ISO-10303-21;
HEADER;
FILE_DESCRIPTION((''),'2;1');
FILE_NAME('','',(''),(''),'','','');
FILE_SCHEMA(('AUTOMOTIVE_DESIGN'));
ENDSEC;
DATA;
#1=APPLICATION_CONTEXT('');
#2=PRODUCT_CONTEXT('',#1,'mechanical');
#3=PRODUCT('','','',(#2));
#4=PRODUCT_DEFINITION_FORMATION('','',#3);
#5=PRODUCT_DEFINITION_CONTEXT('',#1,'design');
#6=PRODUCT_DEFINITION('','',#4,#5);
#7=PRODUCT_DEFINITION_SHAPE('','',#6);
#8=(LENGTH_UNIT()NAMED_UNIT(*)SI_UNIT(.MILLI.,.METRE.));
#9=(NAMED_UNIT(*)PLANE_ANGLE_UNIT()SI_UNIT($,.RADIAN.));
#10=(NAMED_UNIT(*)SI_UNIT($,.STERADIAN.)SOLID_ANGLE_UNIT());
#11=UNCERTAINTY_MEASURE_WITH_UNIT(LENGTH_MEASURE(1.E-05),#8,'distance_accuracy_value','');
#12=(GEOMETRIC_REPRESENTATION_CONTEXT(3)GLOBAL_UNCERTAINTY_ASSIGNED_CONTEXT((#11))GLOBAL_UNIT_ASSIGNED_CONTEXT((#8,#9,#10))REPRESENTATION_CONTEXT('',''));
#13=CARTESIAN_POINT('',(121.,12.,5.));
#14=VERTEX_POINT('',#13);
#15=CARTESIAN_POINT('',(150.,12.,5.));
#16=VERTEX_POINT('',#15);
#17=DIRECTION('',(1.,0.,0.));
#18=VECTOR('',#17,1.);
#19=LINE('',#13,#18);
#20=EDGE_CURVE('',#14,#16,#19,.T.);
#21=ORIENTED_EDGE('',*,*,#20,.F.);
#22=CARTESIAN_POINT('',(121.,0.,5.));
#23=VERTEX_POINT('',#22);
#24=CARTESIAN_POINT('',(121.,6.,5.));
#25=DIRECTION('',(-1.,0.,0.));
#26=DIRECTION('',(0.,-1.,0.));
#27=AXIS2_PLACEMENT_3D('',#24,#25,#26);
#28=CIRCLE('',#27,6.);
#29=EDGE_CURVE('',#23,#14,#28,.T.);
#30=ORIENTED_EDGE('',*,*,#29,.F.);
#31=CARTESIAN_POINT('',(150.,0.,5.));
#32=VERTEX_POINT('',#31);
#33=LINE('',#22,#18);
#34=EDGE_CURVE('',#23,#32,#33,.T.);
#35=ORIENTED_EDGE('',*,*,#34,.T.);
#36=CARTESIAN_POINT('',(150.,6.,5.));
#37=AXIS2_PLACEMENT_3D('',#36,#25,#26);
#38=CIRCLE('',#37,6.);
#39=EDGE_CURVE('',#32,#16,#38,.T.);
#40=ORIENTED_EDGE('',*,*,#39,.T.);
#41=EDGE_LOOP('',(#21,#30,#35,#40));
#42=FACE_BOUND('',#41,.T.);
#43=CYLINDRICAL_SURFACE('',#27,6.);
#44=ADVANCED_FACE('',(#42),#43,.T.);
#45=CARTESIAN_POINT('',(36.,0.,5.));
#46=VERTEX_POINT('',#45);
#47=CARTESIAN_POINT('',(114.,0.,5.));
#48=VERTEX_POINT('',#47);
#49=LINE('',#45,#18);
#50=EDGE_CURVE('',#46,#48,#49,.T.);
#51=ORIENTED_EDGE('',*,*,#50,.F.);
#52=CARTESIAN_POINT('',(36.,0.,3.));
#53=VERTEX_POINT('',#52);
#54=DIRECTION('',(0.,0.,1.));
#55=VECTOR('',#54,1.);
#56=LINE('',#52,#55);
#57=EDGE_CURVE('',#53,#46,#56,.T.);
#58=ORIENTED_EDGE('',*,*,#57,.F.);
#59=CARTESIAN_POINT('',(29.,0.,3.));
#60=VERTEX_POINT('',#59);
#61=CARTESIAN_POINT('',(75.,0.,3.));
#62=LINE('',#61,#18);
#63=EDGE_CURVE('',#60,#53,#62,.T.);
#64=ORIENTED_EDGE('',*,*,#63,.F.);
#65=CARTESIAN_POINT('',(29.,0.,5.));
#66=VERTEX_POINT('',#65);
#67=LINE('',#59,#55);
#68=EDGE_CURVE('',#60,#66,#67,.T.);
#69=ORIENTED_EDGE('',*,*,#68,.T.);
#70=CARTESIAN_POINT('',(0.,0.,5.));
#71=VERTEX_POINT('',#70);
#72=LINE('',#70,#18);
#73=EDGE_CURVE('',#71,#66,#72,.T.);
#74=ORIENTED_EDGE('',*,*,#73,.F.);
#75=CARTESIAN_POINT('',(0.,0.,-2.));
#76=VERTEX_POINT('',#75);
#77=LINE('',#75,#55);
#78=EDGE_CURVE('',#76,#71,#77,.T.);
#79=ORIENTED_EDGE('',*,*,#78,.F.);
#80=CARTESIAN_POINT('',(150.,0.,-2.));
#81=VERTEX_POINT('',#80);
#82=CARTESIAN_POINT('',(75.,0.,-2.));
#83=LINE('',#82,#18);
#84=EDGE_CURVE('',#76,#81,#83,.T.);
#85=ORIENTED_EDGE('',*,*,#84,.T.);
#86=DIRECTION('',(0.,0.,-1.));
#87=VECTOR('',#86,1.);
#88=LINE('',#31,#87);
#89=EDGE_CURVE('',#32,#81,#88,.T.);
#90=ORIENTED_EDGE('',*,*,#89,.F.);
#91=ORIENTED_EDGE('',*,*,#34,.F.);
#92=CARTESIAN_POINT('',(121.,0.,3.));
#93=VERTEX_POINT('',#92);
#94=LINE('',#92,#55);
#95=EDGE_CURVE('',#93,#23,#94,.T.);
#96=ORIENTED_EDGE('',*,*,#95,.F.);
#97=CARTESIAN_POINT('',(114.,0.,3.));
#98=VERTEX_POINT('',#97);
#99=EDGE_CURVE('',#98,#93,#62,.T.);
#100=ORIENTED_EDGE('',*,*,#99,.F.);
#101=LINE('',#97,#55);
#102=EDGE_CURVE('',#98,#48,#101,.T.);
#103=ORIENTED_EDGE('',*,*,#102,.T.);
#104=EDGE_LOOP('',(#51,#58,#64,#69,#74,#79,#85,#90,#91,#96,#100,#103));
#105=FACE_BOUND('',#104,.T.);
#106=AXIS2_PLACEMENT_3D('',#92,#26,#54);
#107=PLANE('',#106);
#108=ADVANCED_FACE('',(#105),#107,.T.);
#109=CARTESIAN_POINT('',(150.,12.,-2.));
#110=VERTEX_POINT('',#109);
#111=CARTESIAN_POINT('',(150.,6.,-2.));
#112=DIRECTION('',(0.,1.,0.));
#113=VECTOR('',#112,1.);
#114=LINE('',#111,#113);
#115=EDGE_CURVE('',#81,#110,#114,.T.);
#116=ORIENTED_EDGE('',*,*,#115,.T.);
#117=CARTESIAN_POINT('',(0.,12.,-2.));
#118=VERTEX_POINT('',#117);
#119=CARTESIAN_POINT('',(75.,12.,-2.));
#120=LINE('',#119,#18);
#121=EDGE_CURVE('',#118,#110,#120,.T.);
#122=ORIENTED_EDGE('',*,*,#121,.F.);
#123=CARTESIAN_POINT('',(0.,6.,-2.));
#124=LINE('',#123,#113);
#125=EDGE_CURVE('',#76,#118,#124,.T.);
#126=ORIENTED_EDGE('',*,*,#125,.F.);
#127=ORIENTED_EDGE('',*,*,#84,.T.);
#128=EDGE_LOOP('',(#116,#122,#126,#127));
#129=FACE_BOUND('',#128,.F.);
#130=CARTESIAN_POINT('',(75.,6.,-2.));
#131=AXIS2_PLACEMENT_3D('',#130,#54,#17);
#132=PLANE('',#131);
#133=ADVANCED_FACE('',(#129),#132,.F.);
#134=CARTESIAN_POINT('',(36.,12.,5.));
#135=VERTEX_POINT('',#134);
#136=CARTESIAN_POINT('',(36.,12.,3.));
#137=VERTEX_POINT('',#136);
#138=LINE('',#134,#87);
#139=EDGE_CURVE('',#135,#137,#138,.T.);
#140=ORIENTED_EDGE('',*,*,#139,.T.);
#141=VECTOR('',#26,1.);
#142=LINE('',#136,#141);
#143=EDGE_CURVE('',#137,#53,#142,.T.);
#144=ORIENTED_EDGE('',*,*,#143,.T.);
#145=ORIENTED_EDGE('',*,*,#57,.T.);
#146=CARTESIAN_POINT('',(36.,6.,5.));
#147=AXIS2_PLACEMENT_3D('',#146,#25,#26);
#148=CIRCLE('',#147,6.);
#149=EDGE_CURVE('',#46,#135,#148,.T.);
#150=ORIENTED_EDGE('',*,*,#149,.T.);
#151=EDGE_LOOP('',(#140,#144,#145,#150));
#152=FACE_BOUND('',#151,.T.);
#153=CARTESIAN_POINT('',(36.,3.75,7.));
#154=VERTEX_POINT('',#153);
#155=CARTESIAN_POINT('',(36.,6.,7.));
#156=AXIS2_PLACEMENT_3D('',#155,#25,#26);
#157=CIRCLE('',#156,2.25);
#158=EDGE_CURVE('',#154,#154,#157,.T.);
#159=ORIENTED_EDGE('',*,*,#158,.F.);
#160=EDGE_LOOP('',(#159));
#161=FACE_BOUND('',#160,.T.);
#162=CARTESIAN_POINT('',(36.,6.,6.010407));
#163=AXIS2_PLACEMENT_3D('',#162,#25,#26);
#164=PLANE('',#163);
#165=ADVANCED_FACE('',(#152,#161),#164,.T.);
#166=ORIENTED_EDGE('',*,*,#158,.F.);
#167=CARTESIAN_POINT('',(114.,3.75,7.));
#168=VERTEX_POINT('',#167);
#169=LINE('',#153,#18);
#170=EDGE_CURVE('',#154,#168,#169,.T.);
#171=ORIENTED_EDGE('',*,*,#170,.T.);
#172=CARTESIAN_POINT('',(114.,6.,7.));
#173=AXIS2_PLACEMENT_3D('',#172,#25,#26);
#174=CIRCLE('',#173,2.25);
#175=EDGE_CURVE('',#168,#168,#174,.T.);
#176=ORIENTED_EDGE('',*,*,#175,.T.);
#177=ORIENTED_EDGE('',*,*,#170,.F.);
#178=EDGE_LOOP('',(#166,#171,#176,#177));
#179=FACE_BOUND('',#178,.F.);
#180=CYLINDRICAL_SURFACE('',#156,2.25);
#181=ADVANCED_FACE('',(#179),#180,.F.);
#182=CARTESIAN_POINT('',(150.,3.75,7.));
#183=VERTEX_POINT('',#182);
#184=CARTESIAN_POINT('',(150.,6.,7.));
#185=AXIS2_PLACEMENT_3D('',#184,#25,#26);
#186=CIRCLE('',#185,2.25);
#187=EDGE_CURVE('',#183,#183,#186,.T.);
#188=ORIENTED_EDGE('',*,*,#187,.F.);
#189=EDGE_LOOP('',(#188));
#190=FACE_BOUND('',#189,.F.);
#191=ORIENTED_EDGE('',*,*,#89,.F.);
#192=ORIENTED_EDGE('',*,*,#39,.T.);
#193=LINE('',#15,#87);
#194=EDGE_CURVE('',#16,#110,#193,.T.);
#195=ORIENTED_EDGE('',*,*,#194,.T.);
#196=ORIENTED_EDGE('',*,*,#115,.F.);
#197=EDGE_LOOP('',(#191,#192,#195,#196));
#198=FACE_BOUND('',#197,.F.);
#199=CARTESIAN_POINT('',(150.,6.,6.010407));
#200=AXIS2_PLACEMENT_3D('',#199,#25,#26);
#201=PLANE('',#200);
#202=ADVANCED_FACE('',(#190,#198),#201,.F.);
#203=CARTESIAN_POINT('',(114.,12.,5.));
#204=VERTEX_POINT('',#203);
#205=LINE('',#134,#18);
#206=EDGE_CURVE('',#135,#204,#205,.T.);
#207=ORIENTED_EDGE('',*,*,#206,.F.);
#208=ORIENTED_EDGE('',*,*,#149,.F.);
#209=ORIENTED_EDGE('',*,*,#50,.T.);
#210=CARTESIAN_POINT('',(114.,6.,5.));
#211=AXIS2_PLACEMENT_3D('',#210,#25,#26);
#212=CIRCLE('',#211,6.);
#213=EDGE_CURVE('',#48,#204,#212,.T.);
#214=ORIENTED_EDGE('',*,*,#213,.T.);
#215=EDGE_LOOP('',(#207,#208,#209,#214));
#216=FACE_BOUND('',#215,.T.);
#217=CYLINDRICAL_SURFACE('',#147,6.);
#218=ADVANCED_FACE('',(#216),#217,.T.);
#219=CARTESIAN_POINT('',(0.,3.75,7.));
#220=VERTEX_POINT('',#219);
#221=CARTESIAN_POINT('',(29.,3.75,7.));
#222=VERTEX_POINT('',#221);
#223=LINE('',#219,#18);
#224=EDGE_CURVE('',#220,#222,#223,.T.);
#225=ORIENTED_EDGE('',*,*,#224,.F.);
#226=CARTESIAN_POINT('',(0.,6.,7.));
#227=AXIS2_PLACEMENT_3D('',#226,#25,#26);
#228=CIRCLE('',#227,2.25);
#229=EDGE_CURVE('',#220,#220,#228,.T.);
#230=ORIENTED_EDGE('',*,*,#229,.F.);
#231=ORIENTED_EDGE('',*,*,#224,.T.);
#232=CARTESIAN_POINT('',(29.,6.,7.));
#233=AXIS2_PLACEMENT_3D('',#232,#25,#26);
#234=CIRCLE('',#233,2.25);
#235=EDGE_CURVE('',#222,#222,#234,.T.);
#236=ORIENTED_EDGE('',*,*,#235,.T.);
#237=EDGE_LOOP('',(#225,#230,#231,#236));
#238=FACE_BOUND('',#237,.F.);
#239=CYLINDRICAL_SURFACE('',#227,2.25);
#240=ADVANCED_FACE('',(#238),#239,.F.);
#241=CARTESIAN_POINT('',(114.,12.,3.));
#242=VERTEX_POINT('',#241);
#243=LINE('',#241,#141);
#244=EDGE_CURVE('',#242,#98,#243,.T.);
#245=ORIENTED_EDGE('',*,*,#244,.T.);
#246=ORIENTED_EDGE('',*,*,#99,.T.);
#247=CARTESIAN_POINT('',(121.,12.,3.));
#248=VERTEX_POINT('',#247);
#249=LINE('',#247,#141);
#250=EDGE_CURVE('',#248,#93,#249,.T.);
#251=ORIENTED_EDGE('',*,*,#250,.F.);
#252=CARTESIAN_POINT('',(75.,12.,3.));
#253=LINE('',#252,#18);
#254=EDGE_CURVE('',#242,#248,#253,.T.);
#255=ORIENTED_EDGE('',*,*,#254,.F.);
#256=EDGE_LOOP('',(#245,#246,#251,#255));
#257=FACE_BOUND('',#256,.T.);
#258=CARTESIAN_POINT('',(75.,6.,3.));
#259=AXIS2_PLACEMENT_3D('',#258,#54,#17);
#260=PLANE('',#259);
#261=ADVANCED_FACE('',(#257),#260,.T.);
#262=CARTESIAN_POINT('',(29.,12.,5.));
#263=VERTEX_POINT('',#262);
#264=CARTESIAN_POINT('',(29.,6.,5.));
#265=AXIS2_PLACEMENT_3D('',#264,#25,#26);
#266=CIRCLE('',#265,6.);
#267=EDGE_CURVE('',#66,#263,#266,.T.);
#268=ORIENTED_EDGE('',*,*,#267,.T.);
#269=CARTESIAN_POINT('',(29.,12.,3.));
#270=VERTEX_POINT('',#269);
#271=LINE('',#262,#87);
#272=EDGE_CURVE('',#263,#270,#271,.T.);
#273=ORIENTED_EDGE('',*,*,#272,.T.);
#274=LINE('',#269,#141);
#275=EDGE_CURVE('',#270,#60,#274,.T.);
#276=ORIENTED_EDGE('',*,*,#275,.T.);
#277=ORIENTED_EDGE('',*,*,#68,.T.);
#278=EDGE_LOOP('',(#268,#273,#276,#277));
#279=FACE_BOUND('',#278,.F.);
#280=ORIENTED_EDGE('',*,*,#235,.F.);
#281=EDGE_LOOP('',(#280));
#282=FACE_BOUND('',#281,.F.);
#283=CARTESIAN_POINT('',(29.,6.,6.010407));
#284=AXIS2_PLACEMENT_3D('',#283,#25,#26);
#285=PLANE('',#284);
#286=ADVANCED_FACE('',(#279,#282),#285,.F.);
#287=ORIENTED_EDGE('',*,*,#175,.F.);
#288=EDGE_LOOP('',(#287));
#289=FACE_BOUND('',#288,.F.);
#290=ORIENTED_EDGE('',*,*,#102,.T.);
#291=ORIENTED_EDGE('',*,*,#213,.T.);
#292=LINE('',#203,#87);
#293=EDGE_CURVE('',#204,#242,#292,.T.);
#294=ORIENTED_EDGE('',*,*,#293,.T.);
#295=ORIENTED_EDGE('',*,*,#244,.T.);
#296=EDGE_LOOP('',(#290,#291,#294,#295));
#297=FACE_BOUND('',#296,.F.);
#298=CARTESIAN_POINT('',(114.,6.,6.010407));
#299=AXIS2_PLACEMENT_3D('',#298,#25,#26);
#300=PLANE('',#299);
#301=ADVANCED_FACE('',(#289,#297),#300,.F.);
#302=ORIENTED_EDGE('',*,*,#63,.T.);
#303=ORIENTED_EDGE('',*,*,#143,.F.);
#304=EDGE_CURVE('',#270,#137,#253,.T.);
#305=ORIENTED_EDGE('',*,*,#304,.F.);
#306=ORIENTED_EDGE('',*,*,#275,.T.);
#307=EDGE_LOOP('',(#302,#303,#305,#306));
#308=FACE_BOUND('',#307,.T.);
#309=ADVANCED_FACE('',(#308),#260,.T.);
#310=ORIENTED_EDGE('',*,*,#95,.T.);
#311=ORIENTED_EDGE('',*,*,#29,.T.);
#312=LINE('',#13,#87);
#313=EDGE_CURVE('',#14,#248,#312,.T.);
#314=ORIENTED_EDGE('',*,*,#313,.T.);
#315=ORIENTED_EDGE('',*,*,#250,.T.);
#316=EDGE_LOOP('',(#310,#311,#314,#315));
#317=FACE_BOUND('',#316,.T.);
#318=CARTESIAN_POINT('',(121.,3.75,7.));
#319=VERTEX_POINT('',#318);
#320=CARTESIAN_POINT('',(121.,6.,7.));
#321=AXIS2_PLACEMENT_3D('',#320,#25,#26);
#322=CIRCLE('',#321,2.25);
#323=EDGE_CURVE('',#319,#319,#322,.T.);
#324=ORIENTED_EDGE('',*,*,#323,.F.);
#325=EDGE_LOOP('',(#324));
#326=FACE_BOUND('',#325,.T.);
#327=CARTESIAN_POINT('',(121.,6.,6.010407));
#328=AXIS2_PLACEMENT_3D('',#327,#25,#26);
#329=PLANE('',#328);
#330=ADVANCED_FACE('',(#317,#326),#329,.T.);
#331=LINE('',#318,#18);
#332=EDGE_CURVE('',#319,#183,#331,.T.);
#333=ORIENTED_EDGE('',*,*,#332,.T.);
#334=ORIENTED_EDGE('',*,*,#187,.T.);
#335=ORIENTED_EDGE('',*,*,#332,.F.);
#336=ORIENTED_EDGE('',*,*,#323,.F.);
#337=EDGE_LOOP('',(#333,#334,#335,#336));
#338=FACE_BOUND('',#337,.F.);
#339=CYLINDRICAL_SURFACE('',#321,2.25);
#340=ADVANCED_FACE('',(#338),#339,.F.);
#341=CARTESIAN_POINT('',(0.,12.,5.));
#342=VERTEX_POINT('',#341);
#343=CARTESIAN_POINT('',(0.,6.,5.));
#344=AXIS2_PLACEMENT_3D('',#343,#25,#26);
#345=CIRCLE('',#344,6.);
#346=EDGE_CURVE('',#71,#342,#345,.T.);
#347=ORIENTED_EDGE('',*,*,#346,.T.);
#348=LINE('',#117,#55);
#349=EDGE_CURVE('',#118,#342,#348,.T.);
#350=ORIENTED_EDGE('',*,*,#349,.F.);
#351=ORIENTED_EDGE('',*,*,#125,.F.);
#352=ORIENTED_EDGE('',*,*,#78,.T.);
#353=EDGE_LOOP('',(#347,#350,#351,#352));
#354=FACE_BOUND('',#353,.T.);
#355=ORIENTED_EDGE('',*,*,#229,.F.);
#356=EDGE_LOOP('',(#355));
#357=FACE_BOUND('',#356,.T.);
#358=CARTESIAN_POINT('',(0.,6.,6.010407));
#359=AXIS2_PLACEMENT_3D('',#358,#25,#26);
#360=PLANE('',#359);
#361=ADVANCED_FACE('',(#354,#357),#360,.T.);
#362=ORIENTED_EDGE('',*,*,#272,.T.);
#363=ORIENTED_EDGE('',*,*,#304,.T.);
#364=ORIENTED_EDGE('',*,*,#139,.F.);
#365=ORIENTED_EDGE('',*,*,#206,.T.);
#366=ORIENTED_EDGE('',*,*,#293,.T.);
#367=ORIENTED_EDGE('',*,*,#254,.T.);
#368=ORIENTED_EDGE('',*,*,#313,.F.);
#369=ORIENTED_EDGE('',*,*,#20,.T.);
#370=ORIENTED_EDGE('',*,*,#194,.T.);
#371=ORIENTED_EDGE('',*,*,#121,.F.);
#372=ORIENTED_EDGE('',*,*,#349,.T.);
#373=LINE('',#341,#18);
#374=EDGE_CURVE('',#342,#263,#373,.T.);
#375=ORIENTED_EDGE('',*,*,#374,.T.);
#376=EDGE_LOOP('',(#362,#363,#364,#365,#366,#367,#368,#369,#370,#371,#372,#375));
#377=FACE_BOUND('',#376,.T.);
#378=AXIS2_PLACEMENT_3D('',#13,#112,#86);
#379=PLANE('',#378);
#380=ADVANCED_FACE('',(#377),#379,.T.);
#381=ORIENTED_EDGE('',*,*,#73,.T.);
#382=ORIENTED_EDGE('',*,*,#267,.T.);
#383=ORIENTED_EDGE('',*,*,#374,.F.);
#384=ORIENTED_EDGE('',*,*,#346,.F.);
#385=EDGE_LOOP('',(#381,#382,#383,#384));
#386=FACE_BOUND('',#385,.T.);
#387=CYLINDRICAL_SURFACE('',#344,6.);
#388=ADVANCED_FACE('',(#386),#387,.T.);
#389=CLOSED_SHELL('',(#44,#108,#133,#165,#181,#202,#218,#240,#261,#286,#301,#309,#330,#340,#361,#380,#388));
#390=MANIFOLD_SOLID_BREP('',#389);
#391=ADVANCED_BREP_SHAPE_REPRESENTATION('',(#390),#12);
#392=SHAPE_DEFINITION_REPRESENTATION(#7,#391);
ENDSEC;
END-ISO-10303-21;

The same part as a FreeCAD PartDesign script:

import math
import FreeCAD as App
import Part
import Sketcher

V = App.Vector

doc = App.newDocument("Part")
body = doc.addObject("PartDesign::Body", "Body")

sketch1 = body.newObject("Sketcher::SketchObject", "Sketch")
sketch1.AttachmentSupport = (doc.getObject("XY_Plane"), [""])
sketch1.MapMode = "FlatFace"
sketch1.addGeometry([
    Part.LineSegment(V(0, 12, 0), V(0, 0, 0)),
    Part.LineSegment(V(0, 0, 0), V(150, 0, 0)),
    Part.LineSegment(V(150, 0, 0), V(150, 12, 0)),
    Part.LineSegment(V(150, 12, 0), V(0, 12, 0)),
], False)
sketch1.addConstraint([
    Sketcher.Constraint("Coincident", 0, 2, 1, 1),
    Sketcher.Constraint("Coincident", 1, 2, 2, 1),
    Sketcher.Constraint("Coincident", 2, 2, 3, 1),
    Sketcher.Constraint("Coincident", 3, 2, 0, 1),
    Sketcher.Constraint("Vertical", 0),
    Sketcher.Constraint("Horizontal", 1),
    Sketcher.Constraint("Vertical", 2),
    Sketcher.Constraint("Horizontal", 3),
    Sketcher.Constraint("Coincident", 0, 2, -1, 1),
    Sketcher.Constraint("DistanceX", 1, 1, 1, 2, 150.0),
    Sketcher.Constraint("DistanceY", 0, 2, 0, 1, 12.0),
])
pad1 = body.newObject("PartDesign::Pad", "Pad")
pad1.Profile = sketch1
pad1.Type = "TwoLengths"
pad1.Length = 3
pad1.Length2 = 2

sketch2 = body.newObject("Sketcher::SketchObject", "Sketch001")
sketch2.AttachmentSupport = (doc.getObject("YZ_Plane"), [""])
sketch2.MapMode = "FlatFace"
sketch2.addGeometry([
    Part.LineSegment(V(12, 5, 0), V(12, 3, 0)),
    Part.LineSegment(V(12, 3, 0), V(0, 3, 0)),
    Part.LineSegment(V(0, 3, 0), V(0, 5, 0)),
    Part.ArcOfCircle(Part.Circle(V(6, 5, 0), V(0, 0, 1), 6), math.radians(0), math.radians(180)),
    Part.Circle(V(6, 7, 0), V(0, 0, 1), 2.25),
], False)
sketch2.addConstraint([
    Sketcher.Constraint("Coincident", 0, 2, 1, 1),
    Sketcher.Constraint("Coincident", 1, 2, 2, 1),
    Sketcher.Constraint("Tangent", 2, 2, 3, 2),
    Sketcher.Constraint("Tangent", 3, 1, 0, 1),
    Sketcher.Constraint("Vertical", 0),
    Sketcher.Constraint("Horizontal", 1),
    Sketcher.Constraint("Vertical", 2),
    Sketcher.Constraint("PointOnObject", 1, 2, -2),
    Sketcher.Constraint("Vertical", 3, 3, 4, 3),
    Sketcher.Constraint("Radius", 3, 6.0),
    Sketcher.Constraint("Diameter", 4, 4.5),
    Sketcher.Constraint("DistanceY", 0, 2, 0, 1, 2.0),
    Sketcher.Constraint("DistanceY", -1, 1, 3, 3, 5.0),
    Sketcher.Constraint("DistanceY", -1, 1, 4, 3, 7.0),
])
pad2 = body.newObject("PartDesign::Pad", "Pad001")
pad2.Profile = sketch2
pad2.Length = 29

sketch3 = body.newObject("Sketcher::SketchObject", "Sketch002")
sketch3.AttachmentSupport = (doc.getObject("YZ_Plane"), [""])
sketch3.MapMode = "FlatFace"
sketch3.AttachmentOffset = App.Placement(V(0, 0, 36), App.Rotation())
sketch3.addGeometry([
    Part.LineSegment(V(12, 5, 0), V(12, 3, 0)),
    Part.LineSegment(V(12, 3, 0), V(0, 3, 0)),
    Part.LineSegment(V(0, 3, 0), V(0, 5, 0)),
    Part.ArcOfCircle(Part.Circle(V(6, 5, 0), V(0, 0, 1), 6), math.radians(0), math.radians(180)),
    Part.Circle(V(6, 7, 0), V(0, 0, 1), 2.25),
], False)
sketch3.addConstraint([
    Sketcher.Constraint("Coincident", 0, 2, 1, 1),
    Sketcher.Constraint("Coincident", 1, 2, 2, 1),
    Sketcher.Constraint("Tangent", 2, 2, 3, 2),
    Sketcher.Constraint("Tangent", 3, 1, 0, 1),
    Sketcher.Constraint("Vertical", 0),
    Sketcher.Constraint("Horizontal", 1),
    Sketcher.Constraint("Vertical", 2),
    Sketcher.Constraint("PointOnObject", 1, 2, -2),
    Sketcher.Constraint("Vertical", 3, 3, 4, 3),
    Sketcher.Constraint("Radius", 3, 6.0),
    Sketcher.Constraint("Diameter", 4, 4.5),
    Sketcher.Constraint("DistanceY", 0, 2, 0, 1, 2.0),
    Sketcher.Constraint("DistanceY", -1, 1, 3, 3, 5.0),
    Sketcher.Constraint("DistanceY", -1, 1, 4, 3, 7.0),
])
pad3 = body.newObject("PartDesign::Pad", "Pad002")
pad3.Profile = sketch3
pad3.Length = 78

sketch4 = body.newObject("Sketcher::SketchObject", "Sketch003")
sketch4.AttachmentSupport = (doc.getObject("YZ_Plane"), [""])
sketch4.MapMode = "FlatFace"
sketch4.AttachmentOffset = App.Placement(V(0, 0, 121), App.Rotation())
sketch4.addGeometry([
    Part.LineSegment(V(12, 5, 0), V(12, 3, 0)),
    Part.LineSegment(V(12, 3, 0), V(0, 3, 0)),
    Part.LineSegment(V(0, 3, 0), V(0, 5, 0)),
    Part.ArcOfCircle(Part.Circle(V(6, 5, 0), V(0, 0, 1), 6), math.radians(0), math.radians(180)),
    Part.Circle(V(6, 7, 0), V(0, 0, 1), 2.25),
], False)
sketch4.addConstraint([
    Sketcher.Constraint("Coincident", 0, 2, 1, 1),
    Sketcher.Constraint("Coincident", 1, 2, 2, 1),
    Sketcher.Constraint("Tangent", 2, 2, 3, 2),
    Sketcher.Constraint("Tangent", 3, 1, 0, 1),
    Sketcher.Constraint("Vertical", 0),
    Sketcher.Constraint("Horizontal", 1),
    Sketcher.Constraint("Vertical", 2),
    Sketcher.Constraint("PointOnObject", 1, 2, -2),
    Sketcher.Constraint("Vertical", 3, 3, 4, 3),
    Sketcher.Constraint("Radius", 3, 6.0),
    Sketcher.Constraint("Diameter", 4, 4.5),
    Sketcher.Constraint("DistanceY", 0, 2, 0, 1, 2.0),
    Sketcher.Constraint("DistanceY", -1, 1, 3, 3, 5.0),
    Sketcher.Constraint("DistanceY", -1, 1, 4, 3, 7.0),
])
pad4 = body.newObject("PartDesign::Pad", "Pad003")
pad4.Profile = sketch4
pad4.Length = 29

doc.recompute()
